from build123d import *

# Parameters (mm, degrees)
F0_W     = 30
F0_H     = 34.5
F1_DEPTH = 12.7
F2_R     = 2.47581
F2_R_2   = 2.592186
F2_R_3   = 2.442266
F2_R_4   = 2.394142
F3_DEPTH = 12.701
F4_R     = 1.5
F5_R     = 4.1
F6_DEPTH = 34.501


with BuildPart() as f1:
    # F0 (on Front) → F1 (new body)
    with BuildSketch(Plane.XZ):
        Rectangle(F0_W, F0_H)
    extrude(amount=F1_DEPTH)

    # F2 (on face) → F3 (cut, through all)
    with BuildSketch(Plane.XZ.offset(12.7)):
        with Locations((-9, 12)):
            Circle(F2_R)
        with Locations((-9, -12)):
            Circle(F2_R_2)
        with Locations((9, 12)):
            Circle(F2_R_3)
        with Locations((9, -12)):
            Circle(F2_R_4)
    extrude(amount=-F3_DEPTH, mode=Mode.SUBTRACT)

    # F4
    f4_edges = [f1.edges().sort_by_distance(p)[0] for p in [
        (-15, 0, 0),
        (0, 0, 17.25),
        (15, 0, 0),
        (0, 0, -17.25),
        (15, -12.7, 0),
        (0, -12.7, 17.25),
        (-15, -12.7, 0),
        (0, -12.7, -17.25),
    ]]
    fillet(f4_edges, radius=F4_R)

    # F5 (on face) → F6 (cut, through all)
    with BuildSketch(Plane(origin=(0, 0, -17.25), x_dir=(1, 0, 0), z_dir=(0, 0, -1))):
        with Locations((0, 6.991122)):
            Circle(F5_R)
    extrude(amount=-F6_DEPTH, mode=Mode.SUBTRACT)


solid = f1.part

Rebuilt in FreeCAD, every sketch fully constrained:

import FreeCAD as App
import Part
import Sketcher


def edges_at(feature, points):
    """Names of the edges that pass closest to the given points."""
    edges = feature.Shape.Edges
    near = lambda p: min(range(len(edges)), key=lambda i: edges[i].distToShape(Part.Vertex(*p))[0])
    return sorted({f"Edge{near(p) + 1}" for p in points})

doc = App.newDocument("Part")
body = doc.addObject("PartDesign::Body", "Body")

# Sketch on XZ plane
sketch1 = body.newObject("Sketcher::SketchObject", "Sketch")
sketch1.AttachmentSupport = (doc.getObject("XZ_Plane"), [""])
sketch1.MapMode = "FlatFace"
sketch1.addGeometry([
    Part.LineSegment(App.Vector(-15, 17, 0), App.Vector(-15, -17, 0)),
    Part.LineSegment(App.Vector(-15, -17, 0), App.Vector(15, -17, 0)),
    Part.LineSegment(App.Vector(15, -17, 0), App.Vector(15, 17, 0)),
    Part.LineSegment(App.Vector(15, 17, 0), App.Vector(-15, 17, 0)),
], False)
sketch1.addConstraint([
    Sketcher.Constraint("Coincident", 0, 2, 1, 1),
    Sketcher.Constraint("Coincident", 1, 2, 2, 1),
    Sketcher.Constraint("Coincident", 2, 2, 3, 1),
    Sketcher.Constraint("Coincident", 3, 2, 0, 1),
    Sketcher.Constraint("Vertical", 0),
    Sketcher.Constraint("Horizontal", 1),
    Sketcher.Constraint("Vertical", 2),
    Sketcher.Constraint("Horizontal", 3),
    Sketcher.Constraint("Symmetric", 0, 2, 2, 2, -1, 1),
    Sketcher.Constraint("DistanceX", 1, 1, 1, 2, 30.0),
    Sketcher.Constraint("DistanceY", 0, 2, 0, 1, 34.5),
])
pad1 = body.newObject("PartDesign::Pad", "Pad")
pad1.Profile = sketch1
pad1.Length = 12.7

# Sketch on XZ plane
sketch2 = body.newObject("Sketcher::SketchObject", "Sketch001")
sketch2.AttachmentSupport = (doc.getObject("XZ_Plane"), [""])
sketch2.MapMode = "FlatFace"
sketch2.AttachmentOffset = App.Placement(App.Vector(0, 0, 12.7), App.Rotation())
sketch2.addGeometry([
    Part.Circle(App.Vector(-9, 12, 0), App.Vector(0, 0, 1), 2.5),
    Part.Circle(App.Vector(-9, -12, 0), App.Vector(0, 0, 1), 2.6),
    Part.Circle(App.Vector(9, 12, 0), App.Vector(0, 0, 1), 2.4),
    Part.Circle(App.Vector(9, -12, 0), App.Vector(0, 0, 1), 2.4),
], False)
sketch2.addConstraint([
    Sketcher.Constraint("Symmetric", 1, 3, 2, 3, -1, 1),
    Sketcher.Constraint("Symmetric", 0, 3, 3, 3, -1, 1),
    Sketcher.Constraint("Symmetric", 0, 3, 2, 3, -2),
    Sketcher.Constraint("DistanceX", 0, 3, -1, 1, 9.0),
    Sketcher.Constraint("DistanceY", -1, 1, 0, 3, 12.0),
    Sketcher.Constraint("Diameter", 0, 4.95162),
    Sketcher.Constraint("Diameter", 1, 5.184372),
    Sketcher.Constraint("Diameter", 2, 4.884532),
    Sketcher.Constraint("Diameter", 3, 4.788284),
])
pocket1 = body.newObject("PartDesign::Pocket", "Pocket")
pocket1.Profile = sketch2
pocket1.Type = "ThroughAll"
doc.recompute()

fillet = body.newObject("PartDesign::Fillet", "Fillet")
fillet.Base = (pocket1, edges_at(pocket1, [
    (-15, 0, 0),
    (0, 0, 17.25),
    (15, 0, 0),
    (0, 0, -17.25),
    (15, -12.7, 0),
    (0, -12.7, 17.25),
    (-15, -12.7, 0),
    (0, -12.7, -17.25),
]))
fillet.Radius = 1.5

# Sketch on XY plane
sketch3 = body.newObject("Sketcher::SketchObject", "Sketch002")
sketch3.AttachmentSupport = (doc.getObject("XY_Plane"), [""])
sketch3.MapMode = "FlatFace"
sketch3.AttachmentOffset = App.Placement(App.Vector(0, 0, -17.25), App.Rotation())
sketch3.addGeometry(Part.Circle(App.Vector(0, -7, 0), App.Vector(0, 0, 1), 4.1), False)
sketch3.addConstraint([
    Sketcher.Constraint("PointOnObject", 0, 3, -2),
    Sketcher.Constraint("Diameter", 0, 8.2),
    Sketcher.Constraint("DistanceY", 0, 3, -1, 1, 6.991122),
])
pocket2 = body.newObject("PartDesign::Pocket", "Pocket001")
pocket2.Profile = sketch3
pocket2.Type = "ThroughAll"
pocket2.Reversed = True

doc.recompute()
